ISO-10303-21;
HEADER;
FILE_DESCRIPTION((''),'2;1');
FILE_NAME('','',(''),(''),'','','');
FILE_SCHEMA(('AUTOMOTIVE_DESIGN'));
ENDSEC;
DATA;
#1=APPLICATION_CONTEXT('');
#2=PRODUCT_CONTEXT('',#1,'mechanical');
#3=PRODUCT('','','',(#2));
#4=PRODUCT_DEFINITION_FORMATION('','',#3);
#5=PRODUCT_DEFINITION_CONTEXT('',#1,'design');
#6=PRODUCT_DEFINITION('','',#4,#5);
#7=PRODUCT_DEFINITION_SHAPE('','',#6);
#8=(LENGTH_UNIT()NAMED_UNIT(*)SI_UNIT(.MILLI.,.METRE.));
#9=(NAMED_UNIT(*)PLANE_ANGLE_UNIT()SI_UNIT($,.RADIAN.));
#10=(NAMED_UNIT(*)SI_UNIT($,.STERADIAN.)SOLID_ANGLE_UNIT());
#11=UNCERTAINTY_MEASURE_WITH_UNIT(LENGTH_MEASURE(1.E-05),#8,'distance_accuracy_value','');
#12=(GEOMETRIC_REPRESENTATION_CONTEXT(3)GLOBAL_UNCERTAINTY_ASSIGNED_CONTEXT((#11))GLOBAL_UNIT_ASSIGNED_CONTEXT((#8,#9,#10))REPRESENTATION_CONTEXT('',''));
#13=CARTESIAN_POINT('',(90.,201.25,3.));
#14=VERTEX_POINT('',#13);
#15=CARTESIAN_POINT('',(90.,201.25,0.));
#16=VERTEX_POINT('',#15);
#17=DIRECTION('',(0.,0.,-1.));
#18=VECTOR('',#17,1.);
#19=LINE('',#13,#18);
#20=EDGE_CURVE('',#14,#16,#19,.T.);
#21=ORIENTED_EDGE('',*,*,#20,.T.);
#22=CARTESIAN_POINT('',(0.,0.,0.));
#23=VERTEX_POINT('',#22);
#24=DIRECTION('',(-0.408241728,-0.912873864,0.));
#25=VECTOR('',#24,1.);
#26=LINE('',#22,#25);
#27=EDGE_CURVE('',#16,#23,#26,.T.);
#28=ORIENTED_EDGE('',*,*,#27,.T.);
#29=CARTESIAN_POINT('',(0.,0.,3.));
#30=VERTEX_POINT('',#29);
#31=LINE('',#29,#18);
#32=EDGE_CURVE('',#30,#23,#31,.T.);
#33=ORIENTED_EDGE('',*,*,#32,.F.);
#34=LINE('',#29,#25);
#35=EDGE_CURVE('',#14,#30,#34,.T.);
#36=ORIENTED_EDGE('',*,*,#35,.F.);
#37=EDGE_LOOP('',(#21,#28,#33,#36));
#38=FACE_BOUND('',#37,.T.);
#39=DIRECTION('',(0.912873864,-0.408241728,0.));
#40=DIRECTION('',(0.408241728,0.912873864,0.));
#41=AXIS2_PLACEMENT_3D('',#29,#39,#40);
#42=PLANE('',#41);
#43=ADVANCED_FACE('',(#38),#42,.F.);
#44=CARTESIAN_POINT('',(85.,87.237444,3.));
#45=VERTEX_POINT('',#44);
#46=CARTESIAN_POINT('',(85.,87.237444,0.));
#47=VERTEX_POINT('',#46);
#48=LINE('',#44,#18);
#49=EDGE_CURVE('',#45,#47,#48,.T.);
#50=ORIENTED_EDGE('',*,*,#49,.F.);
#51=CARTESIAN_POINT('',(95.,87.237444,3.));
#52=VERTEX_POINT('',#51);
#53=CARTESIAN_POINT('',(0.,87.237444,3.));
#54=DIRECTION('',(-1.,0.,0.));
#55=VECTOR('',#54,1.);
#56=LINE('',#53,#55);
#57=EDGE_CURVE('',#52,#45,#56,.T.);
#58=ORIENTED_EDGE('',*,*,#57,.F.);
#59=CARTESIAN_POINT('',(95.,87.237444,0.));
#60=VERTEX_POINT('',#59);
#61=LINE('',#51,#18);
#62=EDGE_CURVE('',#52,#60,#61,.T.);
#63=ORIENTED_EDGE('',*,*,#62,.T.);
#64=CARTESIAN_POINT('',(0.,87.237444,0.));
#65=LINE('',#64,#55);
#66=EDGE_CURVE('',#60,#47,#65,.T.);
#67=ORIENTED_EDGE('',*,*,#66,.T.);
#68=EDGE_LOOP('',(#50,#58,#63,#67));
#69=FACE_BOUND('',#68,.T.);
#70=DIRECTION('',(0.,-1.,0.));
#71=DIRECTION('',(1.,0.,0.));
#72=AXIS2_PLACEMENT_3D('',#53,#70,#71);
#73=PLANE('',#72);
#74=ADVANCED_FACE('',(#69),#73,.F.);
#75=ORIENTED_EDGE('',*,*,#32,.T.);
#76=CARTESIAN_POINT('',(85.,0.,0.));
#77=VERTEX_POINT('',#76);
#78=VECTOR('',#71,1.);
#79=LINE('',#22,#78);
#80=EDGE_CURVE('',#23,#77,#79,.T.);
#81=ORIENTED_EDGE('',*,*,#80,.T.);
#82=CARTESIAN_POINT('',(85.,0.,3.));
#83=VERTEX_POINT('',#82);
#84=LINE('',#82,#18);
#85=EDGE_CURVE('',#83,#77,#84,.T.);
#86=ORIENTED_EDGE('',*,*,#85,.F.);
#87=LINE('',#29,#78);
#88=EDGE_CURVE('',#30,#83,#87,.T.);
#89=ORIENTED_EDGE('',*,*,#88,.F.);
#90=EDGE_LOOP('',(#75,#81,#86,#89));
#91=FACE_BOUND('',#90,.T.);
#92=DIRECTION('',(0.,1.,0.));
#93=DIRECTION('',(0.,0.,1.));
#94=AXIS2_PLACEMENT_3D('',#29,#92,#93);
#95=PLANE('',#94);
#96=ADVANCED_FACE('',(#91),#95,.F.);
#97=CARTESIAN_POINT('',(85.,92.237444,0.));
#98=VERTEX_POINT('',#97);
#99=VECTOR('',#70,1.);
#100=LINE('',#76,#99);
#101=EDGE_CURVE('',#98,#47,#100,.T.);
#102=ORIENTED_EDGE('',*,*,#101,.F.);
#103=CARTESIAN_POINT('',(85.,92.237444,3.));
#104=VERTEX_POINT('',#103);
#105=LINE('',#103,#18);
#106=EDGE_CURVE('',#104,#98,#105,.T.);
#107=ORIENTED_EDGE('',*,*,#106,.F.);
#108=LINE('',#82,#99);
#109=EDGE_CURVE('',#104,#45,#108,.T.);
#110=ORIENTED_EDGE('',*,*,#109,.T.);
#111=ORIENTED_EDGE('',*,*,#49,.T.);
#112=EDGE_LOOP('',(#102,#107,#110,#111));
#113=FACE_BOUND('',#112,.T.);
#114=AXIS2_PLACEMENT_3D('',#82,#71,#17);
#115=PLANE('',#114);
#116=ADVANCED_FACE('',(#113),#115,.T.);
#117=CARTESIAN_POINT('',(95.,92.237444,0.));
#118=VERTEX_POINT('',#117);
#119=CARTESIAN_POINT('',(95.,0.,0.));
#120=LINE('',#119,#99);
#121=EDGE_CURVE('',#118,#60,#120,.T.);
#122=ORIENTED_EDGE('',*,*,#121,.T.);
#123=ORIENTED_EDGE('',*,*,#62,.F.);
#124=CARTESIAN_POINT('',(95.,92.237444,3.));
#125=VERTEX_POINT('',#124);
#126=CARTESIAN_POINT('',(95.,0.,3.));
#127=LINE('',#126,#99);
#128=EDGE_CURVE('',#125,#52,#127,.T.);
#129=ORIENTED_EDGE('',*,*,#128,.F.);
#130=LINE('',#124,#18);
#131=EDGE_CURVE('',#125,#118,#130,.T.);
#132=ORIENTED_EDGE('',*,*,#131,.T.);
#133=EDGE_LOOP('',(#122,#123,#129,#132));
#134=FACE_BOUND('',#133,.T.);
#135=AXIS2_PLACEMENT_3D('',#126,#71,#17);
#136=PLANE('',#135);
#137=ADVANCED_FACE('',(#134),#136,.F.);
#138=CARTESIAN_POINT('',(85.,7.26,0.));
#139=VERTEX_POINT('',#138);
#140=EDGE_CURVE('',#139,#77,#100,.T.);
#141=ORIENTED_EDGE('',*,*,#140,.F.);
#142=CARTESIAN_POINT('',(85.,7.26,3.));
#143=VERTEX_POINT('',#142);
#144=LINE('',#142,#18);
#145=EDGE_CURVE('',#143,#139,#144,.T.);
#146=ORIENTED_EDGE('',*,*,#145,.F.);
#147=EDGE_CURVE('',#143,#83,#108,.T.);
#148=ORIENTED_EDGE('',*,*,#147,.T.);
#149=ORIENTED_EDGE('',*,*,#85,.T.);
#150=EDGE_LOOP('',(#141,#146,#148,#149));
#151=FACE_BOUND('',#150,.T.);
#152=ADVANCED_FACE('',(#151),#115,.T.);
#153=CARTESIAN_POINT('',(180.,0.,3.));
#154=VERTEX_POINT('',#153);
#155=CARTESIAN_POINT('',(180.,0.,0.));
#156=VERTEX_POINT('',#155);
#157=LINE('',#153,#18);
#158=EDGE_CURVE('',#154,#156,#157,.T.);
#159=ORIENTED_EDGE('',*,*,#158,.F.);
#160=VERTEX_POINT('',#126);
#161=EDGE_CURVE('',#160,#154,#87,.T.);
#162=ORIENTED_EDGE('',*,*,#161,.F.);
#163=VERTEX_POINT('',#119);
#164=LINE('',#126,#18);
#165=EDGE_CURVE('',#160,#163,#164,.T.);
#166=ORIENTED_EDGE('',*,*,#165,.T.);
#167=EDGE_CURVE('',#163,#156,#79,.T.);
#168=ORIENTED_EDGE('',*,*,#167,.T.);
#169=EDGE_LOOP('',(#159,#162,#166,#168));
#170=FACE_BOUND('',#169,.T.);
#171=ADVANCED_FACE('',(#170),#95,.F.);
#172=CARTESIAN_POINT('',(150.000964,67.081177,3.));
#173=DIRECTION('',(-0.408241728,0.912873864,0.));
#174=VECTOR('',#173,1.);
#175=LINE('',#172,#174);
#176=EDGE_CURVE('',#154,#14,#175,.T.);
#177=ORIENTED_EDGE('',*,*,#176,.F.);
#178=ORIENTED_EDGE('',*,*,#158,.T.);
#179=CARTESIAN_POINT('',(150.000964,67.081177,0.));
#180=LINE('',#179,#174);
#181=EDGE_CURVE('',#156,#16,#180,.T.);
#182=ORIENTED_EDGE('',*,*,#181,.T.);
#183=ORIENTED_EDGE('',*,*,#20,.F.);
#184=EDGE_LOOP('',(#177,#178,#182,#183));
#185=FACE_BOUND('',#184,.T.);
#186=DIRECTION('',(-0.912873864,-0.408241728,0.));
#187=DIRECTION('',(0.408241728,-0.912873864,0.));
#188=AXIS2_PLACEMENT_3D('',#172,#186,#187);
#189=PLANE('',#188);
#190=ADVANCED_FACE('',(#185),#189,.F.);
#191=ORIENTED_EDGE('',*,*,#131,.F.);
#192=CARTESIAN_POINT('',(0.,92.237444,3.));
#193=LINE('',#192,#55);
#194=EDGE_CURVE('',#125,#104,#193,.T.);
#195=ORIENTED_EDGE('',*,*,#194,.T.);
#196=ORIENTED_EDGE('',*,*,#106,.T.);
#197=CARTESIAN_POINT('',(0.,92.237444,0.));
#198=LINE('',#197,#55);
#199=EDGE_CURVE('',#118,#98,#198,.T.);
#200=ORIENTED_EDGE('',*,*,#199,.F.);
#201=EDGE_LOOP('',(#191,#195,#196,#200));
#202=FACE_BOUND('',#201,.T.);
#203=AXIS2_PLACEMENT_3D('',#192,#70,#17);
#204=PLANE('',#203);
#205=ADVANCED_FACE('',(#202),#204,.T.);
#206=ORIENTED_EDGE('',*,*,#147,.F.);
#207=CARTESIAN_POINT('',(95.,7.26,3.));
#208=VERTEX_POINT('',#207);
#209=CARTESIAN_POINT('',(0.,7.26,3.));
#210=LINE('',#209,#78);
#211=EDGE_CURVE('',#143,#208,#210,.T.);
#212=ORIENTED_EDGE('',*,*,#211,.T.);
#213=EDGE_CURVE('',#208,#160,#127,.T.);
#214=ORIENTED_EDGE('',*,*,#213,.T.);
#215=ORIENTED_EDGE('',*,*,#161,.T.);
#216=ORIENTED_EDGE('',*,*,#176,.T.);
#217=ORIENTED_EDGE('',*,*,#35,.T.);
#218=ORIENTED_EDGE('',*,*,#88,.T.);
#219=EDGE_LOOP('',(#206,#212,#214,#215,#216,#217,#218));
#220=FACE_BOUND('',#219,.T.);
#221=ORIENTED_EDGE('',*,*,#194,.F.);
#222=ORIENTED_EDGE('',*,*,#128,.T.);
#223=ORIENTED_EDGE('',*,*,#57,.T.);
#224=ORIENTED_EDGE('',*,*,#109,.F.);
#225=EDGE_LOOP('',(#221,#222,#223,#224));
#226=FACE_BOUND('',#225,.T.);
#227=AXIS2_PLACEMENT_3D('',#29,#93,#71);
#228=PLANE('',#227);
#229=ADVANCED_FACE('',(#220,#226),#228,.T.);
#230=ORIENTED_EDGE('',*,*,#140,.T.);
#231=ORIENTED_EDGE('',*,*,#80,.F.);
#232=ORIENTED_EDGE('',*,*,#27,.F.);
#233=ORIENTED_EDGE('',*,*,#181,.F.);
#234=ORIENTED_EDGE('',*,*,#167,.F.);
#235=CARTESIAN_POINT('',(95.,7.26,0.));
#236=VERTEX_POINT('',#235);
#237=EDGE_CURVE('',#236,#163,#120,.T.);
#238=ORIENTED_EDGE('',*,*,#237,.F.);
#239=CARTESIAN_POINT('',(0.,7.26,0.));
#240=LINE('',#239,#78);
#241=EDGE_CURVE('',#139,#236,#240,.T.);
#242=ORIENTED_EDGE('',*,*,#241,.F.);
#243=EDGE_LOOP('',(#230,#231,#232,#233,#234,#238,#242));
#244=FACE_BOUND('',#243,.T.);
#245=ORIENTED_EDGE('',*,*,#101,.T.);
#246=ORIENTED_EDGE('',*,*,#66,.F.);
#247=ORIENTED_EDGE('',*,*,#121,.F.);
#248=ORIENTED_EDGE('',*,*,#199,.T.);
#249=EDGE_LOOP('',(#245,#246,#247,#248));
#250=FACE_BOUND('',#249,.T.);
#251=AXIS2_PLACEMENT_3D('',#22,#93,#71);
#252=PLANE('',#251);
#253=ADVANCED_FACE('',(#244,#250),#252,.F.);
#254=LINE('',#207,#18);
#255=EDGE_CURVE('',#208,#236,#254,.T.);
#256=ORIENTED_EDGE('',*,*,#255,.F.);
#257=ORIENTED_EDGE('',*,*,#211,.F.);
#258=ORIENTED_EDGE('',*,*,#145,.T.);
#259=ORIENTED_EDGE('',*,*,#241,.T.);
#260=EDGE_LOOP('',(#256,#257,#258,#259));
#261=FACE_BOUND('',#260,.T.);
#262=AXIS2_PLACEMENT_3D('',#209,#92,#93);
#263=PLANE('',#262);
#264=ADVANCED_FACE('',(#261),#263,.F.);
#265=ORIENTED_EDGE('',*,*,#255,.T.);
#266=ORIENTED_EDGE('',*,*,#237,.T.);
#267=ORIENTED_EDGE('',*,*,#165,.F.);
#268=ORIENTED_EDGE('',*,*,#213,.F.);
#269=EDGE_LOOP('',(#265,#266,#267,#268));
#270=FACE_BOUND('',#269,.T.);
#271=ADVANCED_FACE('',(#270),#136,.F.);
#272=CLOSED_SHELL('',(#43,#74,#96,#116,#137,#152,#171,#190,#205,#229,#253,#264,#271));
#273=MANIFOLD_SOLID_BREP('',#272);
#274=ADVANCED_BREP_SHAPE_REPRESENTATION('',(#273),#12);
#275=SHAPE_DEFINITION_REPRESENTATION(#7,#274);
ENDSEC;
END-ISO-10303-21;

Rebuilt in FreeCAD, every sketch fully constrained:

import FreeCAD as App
import Part
import Sketcher

doc = App.newDocument("Part")
body = doc.addObject("PartDesign::Body", "Body")

sketch1 = body.newObject("Sketcher::SketchObject", "Sketch")
sketch1.AttachmentSupport = (doc.getObject("XY_Plane"), [""])
sketch1.MapMode = "FlatFace"
sketch1.addGeometry(Part.LineSegment(App.Vector(90, 201, 0), App.Vector(0, 0, 0)), False)
sketch1.addGeometry(Part.LineSegment(App.Vector(0, 0, 0), App.Vector(85, 0, 0)), False)
sketch1.addGeometry(Part.LineSegment(App.Vector(85, 0, 0), App.Vector(85, 7, 0)), False)
sketch1.addGeometry(Part.LineSegment(App.Vector(85, 7, 0), App.Vector(95, 7, 0)), False)
sketch1.addGeometry(Part.LineSegment(App.Vector(95, 7, 0), App.Vector(95, 0, 0)), False)
sketch1.addGeometry(Part.LineSegment(App.Vector(95, 0, 0), App.Vector(180, 0, 0)), False)
sketch1.addGeometry(Part.LineSegment(App.Vector(180, 0, 0), App.Vector(90, 201, 0)), False)
sketch1.addGeometry(Part.LineSegment(App.Vector(95, 87, 0), App.Vector(85, 87, 0)), False)
sketch1.addGeometry(Part.LineSegment(App.Vector(85, 87, 0), App.Vector(85, 92, 0)), False)
sketch1.addGeometry(Part.LineSegment(App.Vector(85, 92, 0), App.Vector(95, 92, 0)), False)
sketch1.addGeometry(Part.LineSegment(App.Vector(95, 92, 0), App.Vector(95, 87, 0)), False)
sketch1.addConstraint(Sketcher.Constraint("Coincident", 0, 2, 1, 1))
sketch1.addConstraint(Sketcher.Constraint("Coincident", 1, 2, 2, 1))
sketch1.addConstraint(Sketcher.Constraint("Coincident", 2, 2, 3, 1))
sketch1.addConstraint(Sketcher.Constraint("Coincident", 3, 2, 4, 1))
sketch1.addConstraint(Sketcher.Constraint("Coincident", 4, 2, 5, 1))
sketch1.addConstraint(Sketcher.Constraint("Coincident", 5, 2, 6, 1))
sketch1.addConstraint(Sketcher.Constraint("Coincident", 6, 2, 0, 1))
sketch1.addConstraint(Sketcher.Constraint("Coincident", 7, 2, 8, 1))
sketch1.addConstraint(Sketcher.Constraint("Coincident", 8, 2, 9, 1))
sketch1.addConstraint(Sketcher.Constraint("Coincident", 9, 2, 10, 1))
sketch1.addConstraint(Sketcher.Constraint("Coincident", 10, 2, 7, 1))
sketch1.addConstraint(Sketcher.Constraint("Horizontal", 1))
sketch1.addConstraint(Sketcher.Constraint("Vertical", 2))
sketch1.addConstraint(Sketcher.Constraint("Horizontal", 3))
sketch1.addConstraint(Sketcher.Constraint("Vertical", 4))
sketch1.addConstraint(Sketcher.Constraint("Horizontal", 5))
sketch1.addConstraint(Sketcher.Constraint("Horizontal", 7))
sketch1.addConstraint(Sketcher.Constraint("Vertical", 8))
sketch1.addConstraint(Sketcher.Constraint("Horizontal", 9))
sketch1.addConstraint(Sketcher.Constraint("Vertical", 10))
sketch1.addConstraint(Sketcher.Constraint("Coincident", 0, 2, -1, 1))
sketch1.addConstraint(Sketcher.Constraint("PointOnObject", 4, 2, -1))
sketch1.addConstraint(Sketcher.Constraint("Vertical", 2, 2, 7, 2))
sketch1.addConstraint(Sketcher.Constraint("Vertical", 4, 2, 9, 2))
sketch1.addConstraint(Sketcher.Constraint("Equal", 1, 5))
sketch1.addConstraint(Sketcher.Constraint("Equal", 0, 6))
sketch1.addConstraint(Sketcher.Constraint("DistanceX", 1, 1, 1, 2, 85.0))
sketch1.addConstraint(Sketcher.Constraint("DistanceX", 3, 1, 3, 2, 10.0))
sketch1.addConstraint(Sketcher.Constraint("DistanceY", 8, 1, 8, 2, 5.0))
sketch1.addConstraint(Sketcher.Constraint("DistanceY", 2, 1, 2, 2, 7.26))
sketch1.addConstraint(Sketcher.Constraint("DistanceY", -1, 1, 6, 2, 201.25))
sketch1.addConstraint(Sketcher.Constraint("DistanceY", -1, 1, 7, 2, 87.237444))
pad1 = body.newObject("PartDesign::Pad", "Pad")
pad1.Profile = sketch1
pad1.Length = 3

doc.recompute()
